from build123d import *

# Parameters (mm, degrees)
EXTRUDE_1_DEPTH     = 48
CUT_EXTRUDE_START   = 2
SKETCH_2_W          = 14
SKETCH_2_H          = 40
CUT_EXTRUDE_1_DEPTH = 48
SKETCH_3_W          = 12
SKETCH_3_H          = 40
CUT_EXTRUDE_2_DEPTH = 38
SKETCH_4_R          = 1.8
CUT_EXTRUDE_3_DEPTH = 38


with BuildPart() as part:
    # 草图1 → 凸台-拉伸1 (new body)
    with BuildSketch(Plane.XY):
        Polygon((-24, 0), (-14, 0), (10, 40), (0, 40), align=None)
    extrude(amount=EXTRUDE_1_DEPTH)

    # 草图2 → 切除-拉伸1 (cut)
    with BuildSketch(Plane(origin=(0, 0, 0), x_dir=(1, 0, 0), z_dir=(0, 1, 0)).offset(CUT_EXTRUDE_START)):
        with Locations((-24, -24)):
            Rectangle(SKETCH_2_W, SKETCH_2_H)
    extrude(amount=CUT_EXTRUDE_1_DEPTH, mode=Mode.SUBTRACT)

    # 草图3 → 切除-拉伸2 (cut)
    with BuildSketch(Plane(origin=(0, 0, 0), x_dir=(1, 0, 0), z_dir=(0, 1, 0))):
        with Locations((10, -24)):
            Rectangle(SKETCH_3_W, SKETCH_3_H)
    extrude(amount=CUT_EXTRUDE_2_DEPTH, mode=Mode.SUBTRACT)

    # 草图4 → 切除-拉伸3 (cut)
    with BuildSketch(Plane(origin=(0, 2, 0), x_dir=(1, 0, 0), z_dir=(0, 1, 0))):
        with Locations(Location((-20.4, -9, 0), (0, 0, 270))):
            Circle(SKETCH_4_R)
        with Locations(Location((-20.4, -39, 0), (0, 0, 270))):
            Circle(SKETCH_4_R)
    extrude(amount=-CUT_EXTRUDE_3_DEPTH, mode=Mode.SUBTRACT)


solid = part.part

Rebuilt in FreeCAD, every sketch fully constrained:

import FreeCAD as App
import Part
import Sketcher

V = App.Vector
Q = App.Units.Quantity


def add_polygon(sketch, points):
    """Adds a closed chain of lines whose ends are joined by coincident constraints."""
    first, n = sketch.GeometryCount, len(points)
    for a, b in zip(points, points[1:] + points[:1]):
        sketch.addGeometry(Part.LineSegment(App.Vector(*a, 0), App.Vector(*b, 0)), False)
    for i in range(n):
        sketch.addConstraint(Sketcher.Constraint("Coincident", first + i, 2, first + (i + 1) % n, 1))

doc = App.newDocument("Part")
body = doc.addObject("PartDesign::Body", "Body")

sketch1 = doc.addObject("Sketcher::SketchObject", "Sketch")
body.addObject(sketch1)
sketch1.AttachmentSupport = (doc.XY_Plane, [""])
sketch1.MapMode = "FlatFace"
add_polygon(sketch1, [(-24, 0), (-14, 0), (10, 40), (0, 40)])
sketch1.addConstraint(Sketcher.Constraint("Horizontal", 0))
sketch1.addConstraint(Sketcher.Constraint("Horizontal", 2))
sketch1.addConstraint(Sketcher.Constraint("PointOnObject", 0, 2, -1))
sketch1.addConstraint(Sketcher.Constraint("PointOnObject", 2, 2, -2))
sketch1.addConstraint(Sketcher.Constraint("Parallel", 1, 3))
sketch1.addConstraint(Sketcher.Constraint("DistanceX", 0, 1, 0, 2, Q("10 mm")))
sketch1.addConstraint(Sketcher.Constraint("DistanceX", 0, 2, -1, 1, Q("14 mm")))
sketch1.addConstraint(Sketcher.Constraint("DistanceY", -1, 1, 1, 2, Q("40 mm")))
pad1 = doc.addObject("PartDesign::Pad", "Pad")
body.addObject(pad1)
pad1.Profile = sketch1
pad1.Length = 48

sketch2 = doc.addObject("Sketcher::SketchObject", "Sketch001")
body.addObject(sketch2)
sketch2.AttachmentSupport = (doc.XZ_Plane, [""])
sketch2.MapMode = "FlatFace"
sketch2.AttachmentOffset = App.Placement(V(0, 0, -2), App.Rotation())
add_polygon(sketch2, [(-31, 4), (-31, 44), (-17, 44), (-17, 4)])
sketch2.addConstraint(Sketcher.Constraint("Vertical", 0))
sketch2.addConstraint(Sketcher.Constraint("Horizontal", 1))
sketch2.addConstraint(Sketcher.Constraint("Vertical", 2))
sketch2.addConstraint(Sketcher.Constraint("Horizontal", 3))
sketch2.addConstraint(Sketcher.Constraint("DistanceX", 1, 1, 1, 2, Q("14 mm")))
sketch2.addConstraint(Sketcher.Constraint("DistanceY", 0, 1, 0, 2, Q("40 mm")))
sketch2.addConstraint(Sketcher.Constraint("DistanceX", 0, 2, -1, 1, Q("31 mm")))
sketch2.addConstraint(Sketcher.Constraint("DistanceY", -1, 1, 0, 2, Q("44 mm")))
pocket1 = doc.addObject("PartDesign::Pocket", "Pocket")
body.addObject(pocket1)
pocket1.Profile = sketch2
pocket1.Length = 48

sketch3 = doc.addObject("Sketcher::SketchObject", "Sketch002")
body.addObject(sketch3)
sketch3.AttachmentSupport = (doc.XZ_Plane, [""])
sketch3.MapMode = "FlatFace"
add_polygon(sketch3, [(4, 4), (4, 44), (16, 44), (16, 4)])
sketch3.addConstraint(Sketcher.Constraint("Vertical", 0))
sketch3.addConstraint(Sketcher.Constraint("Horizontal", 1))
sketch3.addConstraint(Sketcher.Constraint("Vertical", 2))
sketch3.addConstraint(Sketcher.Constraint("Horizontal", 3))
sketch3.addConstraint(Sketcher.Constraint("DistanceX", 1, 1, 1, 2, Q("12 mm")))
sketch3.addConstraint(Sketcher.Constraint("DistanceY", 0, 1, 0, 2, Q("40 mm")))
sketch3.addConstraint(Sketcher.Constraint("DistanceX", -1, 1, 0, 2, Q("4 mm")))
sketch3.addConstraint(Sketcher.Constraint("DistanceY", -1, 1, 0, 2, Q("44 mm")))
pocket2 = doc.addObject("PartDesign::Pocket", "Pocket001")
body.addObject(pocket2)
pocket2.Profile = sketch3
pocket2.Length = 38

sketch4 = doc.addObject("Sketcher::SketchObject", "Sketch003")
body.addObject(sketch4)
sketch4.AttachmentSupport = (doc.XZ_Plane, [""])
sketch4.MapMode = "FlatFace"
sketch4.AttachmentOffset = App.Placement(V(0, 0, -2), App.Rotation())
sketch4.addGeometry(Part.Circle(V(-20.4, 9, 0), V(0, 0, 1), 1.8), False)
sketch4.addGeometry(Part.Circle(V(-20.4, 39, 0), V(0, 0, 1), 1.8), False)
sketch4.addConstraint(Sketcher.Constraint("Equal", 0, 1))
sketch4.addConstraint(Sketcher.Constraint("Vertical", 0, 3, 1, 3))
sketch4.addConstraint(Sketcher.Constraint("Diameter", 0, Q("3.6 mm")))
sketch4.addConstraint(Sketcher.Constraint("DistanceY", -1, 1, 0, 3, Q("9 mm")))
sketch4.addConstraint(Sketcher.Constraint("DistanceY", -1, 1, 1, 3, Q("39 mm")))
sketch4.addConstraint(Sketcher.Constraint("DistanceX", 0, 3, -1, 1, Q("20.4 mm")))
pocket3 = doc.addObject("PartDesign::Pocket", "Pocket002")
body.addObject(pocket3)
pocket3.Profile = sketch4
pocket3.Length = 38
pocket3.Reversed = True

doc.recompute()
